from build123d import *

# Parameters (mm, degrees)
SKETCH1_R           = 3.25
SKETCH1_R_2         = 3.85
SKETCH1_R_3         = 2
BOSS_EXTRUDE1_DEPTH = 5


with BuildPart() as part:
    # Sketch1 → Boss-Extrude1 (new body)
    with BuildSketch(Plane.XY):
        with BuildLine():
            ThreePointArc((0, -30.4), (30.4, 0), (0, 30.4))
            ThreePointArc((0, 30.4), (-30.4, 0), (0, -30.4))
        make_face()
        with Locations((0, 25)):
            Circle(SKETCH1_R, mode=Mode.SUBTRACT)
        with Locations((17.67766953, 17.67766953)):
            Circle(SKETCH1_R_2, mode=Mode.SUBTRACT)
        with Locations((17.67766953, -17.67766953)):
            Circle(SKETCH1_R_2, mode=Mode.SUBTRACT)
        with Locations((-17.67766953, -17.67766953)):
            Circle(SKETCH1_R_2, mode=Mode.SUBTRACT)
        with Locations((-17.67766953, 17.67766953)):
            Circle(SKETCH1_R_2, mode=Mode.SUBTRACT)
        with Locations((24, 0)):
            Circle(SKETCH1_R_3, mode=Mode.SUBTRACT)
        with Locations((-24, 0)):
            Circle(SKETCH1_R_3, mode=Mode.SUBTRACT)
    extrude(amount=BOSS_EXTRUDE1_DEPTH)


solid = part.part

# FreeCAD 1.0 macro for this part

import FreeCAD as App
import Part
import Sketcher
Q = App.Units.Quantity

doc = App.newDocument("Part")
body = doc.addObject("PartDesign::Body", "Body")

# Sketch on XY plane
sketch1 = body.newObject("Sketcher::SketchObject", "Sketch")
sketch1.AttachmentSupport = (doc.getObject("XY_Plane"), [""])
sketch1.MapMode = "FlatFace"
sketch1.addGeometry([
    Part.Circle(App.Vector(0, 0, 0), App.Vector(0, 0, 1), 30.4),  # 0
    Part.Circle(App.Vector(-17.67767, -17.67767, 0), App.Vector(0, 0, 1), 3.85),  # 1
    Part.Circle(App.Vector(-24, 0, 0), App.Vector(0, 0, 1), 2),  # 2
    Part.Circle(App.Vector(17.67767, -17.67767, 0), App.Vector(0, 0, 1), 3.85),  # 3
    Part.Circle(App.Vector(24, 0, 0), App.Vector(0, 0, 1), 2),  # 4
    Part.Circle(App.Vector(-17.67767, 17.67767, 0), App.Vector(0, 0, 1), 3.85),  # 5
    Part.Circle(App.Vector(0, 25, 0), App.Vector(0, 0, 1), 3.25),  # 6
    Part.Circle(App.Vector(17.67767, 17.67767, 0), App.Vector(0, 0, 1), 3.85),  # 7
], False)
sketch1.addConstraint([
    Sketcher.Constraint("Coincident", 0, 3, -1, 1),
    Sketcher.Constraint("Equal", 1, 3),
    Sketcher.Constraint("Equal", 2, 4),
    Sketcher.Constraint("Equal", 3, 5),
    Sketcher.Constraint("Equal", 5, 7),
    Sketcher.Constraint("Symmetric", 2, 3, 4, 3, -1, 1),
    Sketcher.Constraint("Symmetric", 3, 3, 5, 3, -1, 1),
    Sketcher.Constraint("Symmetric", 1, 3, 7, 3, -1, 1),
    Sketcher.Constraint("Symmetric", 1, 3, 3, 3, -2),
    Sketcher.Constraint("PointOnObject", 2, 3, -1),
    Sketcher.Constraint("PointOnObject", 6, 3, -2),
    Sketcher.Constraint("Diameter", 2, Q("4 mm")),
    Sketcher.Constraint("Diameter", 0, Q("60.8 mm")),
    Sketcher.Constraint("Diameter", 1, Q("7.7 mm")),
    Sketcher.Constraint("Diameter", 6, Q("6.5 mm")),
    Sketcher.Constraint("DistanceX", 2, 3, -1, 1, Q("24 mm")),
    Sketcher.Constraint("DistanceY", -1, 1, 6, 3, Q("25 mm")),
    Sketcher.Constraint("DistanceX", 1, 3, -1, 1, Q("17.67767 mm")),
    Sketcher.Constraint("DistanceY", 1, 3, -1, 1, Q("17.67767 mm")),
])
pad1 = body.newObject("PartDesign::Pad", "Pad")
pad1.Profile = sketch1
pad1.Length = 5

doc.recompute()
